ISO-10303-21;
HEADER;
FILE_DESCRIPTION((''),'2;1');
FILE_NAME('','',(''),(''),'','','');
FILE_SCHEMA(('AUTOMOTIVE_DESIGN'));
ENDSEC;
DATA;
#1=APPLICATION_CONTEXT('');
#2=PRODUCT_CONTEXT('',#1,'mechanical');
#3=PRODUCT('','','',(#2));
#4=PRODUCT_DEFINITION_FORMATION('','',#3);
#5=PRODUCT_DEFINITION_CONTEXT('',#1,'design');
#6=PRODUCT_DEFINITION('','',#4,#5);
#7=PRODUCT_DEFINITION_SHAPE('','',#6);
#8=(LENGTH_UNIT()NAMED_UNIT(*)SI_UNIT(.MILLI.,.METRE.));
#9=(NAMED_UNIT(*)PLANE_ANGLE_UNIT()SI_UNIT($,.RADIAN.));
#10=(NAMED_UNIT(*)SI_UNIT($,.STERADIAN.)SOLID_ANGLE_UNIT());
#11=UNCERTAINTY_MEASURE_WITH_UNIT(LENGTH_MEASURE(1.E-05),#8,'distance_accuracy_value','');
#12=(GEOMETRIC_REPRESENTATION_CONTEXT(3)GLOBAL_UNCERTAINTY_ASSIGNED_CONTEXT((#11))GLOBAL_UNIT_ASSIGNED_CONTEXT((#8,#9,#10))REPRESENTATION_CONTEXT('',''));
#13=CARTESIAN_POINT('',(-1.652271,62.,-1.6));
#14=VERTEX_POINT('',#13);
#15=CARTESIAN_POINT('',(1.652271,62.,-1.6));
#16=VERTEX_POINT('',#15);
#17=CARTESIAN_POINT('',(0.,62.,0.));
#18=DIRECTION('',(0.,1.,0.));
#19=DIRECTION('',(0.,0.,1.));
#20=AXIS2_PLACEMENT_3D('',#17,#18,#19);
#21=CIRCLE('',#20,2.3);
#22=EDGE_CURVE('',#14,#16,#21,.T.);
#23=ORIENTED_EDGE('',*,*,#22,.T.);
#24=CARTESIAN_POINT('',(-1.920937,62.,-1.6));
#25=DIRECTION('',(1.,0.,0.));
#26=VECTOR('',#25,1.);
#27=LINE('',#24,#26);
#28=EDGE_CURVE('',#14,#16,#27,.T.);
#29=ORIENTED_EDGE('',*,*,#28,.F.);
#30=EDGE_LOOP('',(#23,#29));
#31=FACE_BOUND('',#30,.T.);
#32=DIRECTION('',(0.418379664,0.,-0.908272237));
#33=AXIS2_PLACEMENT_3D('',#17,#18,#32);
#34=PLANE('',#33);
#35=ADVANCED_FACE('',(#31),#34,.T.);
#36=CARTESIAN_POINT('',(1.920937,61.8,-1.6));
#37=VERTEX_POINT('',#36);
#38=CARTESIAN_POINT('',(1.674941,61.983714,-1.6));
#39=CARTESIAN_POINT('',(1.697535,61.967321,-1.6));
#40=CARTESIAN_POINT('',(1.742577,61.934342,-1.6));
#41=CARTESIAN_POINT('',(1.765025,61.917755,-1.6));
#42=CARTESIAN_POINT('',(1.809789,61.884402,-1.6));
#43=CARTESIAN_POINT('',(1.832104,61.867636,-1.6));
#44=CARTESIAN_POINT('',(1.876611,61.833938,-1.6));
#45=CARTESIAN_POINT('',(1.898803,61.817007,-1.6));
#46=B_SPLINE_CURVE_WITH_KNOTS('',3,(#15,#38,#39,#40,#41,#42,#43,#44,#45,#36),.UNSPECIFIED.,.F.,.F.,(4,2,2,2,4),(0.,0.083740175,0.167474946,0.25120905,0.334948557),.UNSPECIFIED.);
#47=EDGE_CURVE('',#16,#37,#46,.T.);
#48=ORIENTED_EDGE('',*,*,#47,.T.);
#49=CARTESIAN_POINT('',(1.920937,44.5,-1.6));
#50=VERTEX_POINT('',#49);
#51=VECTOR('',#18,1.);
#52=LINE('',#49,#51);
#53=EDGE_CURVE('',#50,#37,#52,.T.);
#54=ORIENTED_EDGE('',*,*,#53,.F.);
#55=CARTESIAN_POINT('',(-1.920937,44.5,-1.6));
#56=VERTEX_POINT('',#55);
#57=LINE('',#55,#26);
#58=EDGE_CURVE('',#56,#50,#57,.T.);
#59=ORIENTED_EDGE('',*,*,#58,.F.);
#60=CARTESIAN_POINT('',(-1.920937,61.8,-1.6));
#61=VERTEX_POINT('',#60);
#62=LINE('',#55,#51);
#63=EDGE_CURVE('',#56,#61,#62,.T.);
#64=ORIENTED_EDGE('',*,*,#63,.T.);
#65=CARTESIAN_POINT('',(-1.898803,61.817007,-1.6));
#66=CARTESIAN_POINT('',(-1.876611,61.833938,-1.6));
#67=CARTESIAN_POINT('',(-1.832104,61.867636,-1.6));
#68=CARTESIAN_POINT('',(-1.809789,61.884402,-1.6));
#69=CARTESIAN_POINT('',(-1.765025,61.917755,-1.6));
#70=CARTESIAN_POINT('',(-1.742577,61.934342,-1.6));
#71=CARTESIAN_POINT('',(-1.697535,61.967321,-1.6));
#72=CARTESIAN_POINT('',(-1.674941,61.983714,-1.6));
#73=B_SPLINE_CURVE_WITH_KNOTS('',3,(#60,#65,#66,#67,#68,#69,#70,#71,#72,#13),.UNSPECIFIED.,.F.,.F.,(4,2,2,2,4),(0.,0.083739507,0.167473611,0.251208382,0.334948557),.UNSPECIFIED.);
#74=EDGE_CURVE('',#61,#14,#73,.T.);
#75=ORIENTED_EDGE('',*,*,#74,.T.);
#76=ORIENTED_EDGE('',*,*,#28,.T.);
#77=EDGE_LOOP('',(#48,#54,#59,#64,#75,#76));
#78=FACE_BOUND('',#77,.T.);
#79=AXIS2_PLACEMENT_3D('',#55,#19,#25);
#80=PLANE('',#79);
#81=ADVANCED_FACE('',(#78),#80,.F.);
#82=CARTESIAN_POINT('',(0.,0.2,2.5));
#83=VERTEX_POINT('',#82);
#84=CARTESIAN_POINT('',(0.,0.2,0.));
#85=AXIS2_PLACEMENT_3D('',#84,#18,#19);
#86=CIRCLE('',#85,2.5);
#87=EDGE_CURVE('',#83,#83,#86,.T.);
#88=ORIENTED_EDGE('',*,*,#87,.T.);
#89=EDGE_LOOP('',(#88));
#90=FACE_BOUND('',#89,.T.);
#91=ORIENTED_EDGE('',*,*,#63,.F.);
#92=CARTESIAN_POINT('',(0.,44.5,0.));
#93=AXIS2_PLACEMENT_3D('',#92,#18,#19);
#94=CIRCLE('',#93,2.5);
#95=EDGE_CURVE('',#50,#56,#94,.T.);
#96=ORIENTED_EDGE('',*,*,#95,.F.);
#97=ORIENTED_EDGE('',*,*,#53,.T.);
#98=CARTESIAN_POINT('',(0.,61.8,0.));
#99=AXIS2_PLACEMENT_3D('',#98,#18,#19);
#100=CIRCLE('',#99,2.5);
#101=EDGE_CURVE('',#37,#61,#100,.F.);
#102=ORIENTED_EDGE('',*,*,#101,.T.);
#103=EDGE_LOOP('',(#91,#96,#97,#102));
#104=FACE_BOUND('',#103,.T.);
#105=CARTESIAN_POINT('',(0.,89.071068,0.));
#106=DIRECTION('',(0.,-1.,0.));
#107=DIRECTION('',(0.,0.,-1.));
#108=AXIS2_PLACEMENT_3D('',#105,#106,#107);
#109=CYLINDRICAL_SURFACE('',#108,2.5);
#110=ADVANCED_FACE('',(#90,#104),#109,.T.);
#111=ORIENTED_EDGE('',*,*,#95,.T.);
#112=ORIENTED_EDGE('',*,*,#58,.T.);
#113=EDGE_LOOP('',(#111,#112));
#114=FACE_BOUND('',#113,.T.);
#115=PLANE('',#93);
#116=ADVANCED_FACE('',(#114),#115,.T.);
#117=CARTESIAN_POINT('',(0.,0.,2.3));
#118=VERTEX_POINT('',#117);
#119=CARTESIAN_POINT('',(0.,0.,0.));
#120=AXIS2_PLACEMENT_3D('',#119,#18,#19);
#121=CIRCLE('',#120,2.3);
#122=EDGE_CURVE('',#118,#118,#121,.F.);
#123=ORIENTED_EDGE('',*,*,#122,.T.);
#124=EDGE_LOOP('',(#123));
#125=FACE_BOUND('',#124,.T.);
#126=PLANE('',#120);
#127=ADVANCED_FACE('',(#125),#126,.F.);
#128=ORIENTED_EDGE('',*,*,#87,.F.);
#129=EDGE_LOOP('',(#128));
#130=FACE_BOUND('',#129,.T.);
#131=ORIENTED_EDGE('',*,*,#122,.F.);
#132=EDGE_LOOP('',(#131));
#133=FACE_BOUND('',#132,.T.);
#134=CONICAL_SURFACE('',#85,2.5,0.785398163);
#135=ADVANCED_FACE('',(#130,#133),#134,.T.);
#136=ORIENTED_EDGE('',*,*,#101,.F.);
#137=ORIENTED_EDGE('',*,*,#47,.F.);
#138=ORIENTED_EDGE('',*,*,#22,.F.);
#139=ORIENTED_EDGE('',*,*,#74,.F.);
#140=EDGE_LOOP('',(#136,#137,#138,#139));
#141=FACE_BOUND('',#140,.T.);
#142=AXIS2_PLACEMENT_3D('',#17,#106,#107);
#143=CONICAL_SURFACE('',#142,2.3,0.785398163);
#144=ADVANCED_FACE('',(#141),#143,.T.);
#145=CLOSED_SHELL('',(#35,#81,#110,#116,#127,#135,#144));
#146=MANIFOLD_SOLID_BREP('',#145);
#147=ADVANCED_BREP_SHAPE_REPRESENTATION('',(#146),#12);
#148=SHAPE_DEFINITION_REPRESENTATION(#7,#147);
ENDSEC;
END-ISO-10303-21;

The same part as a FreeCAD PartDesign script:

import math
import FreeCAD as App
import Part
import Sketcher
Q = App.Units.Quantity


def edges_at(feature, points):
    """Names of the edges that pass closest to the given points."""
    edges = feature.Shape.Edges
    near = lambda p: min(range(len(edges)), key=lambda i: edges[i].distToShape(Part.Vertex(*p))[0])
    return sorted({f"Edge{near(p) + 1}" for p in points})

doc = App.newDocument("Part")
body = doc.addObject("PartDesign::Body", "Body")

sketch1 = body.newObject("Sketcher::SketchObject", "Sketch")
sketch1.AttachmentSupport = (doc.getObject("XZ_Plane"), [""])
sketch1.MapMode = "FlatFace"
sketch1.addGeometry(Part.Circle(App.Vector(0, 0, 0), App.Vector(0, 0, 1), 2.5), False)
sketch1.addConstraint(Sketcher.Constraint("Coincident", 0, 3, -1, 1))
sketch1.addConstraint(Sketcher.Constraint("Diameter", 0, Q("5 mm")))
pad1 = body.newObject("PartDesign::Pad", "Pad")
pad1.Profile = sketch1
pad1.Length = 62
pad1.Reversed = True

sketch2 = body.newObject("Sketcher::SketchObject", "Sketch001")
sketch2.AttachmentSupport = (doc.getObject("XZ_Plane"), [""])
sketch2.MapMode = "FlatFace"
sketch2.AttachmentOffset = App.Placement(App.Vector(0, 0, -62), App.Rotation())
sketch2.addGeometry(Part.LineSegment(App.Vector(-1.9, -1.6, 0), App.Vector(1.9, -1.6, 0)), False)
sketch2.addGeometry(Part.ArcOfCircle(Part.Circle(App.Vector(0, 0, 0), App.Vector(0, 0, 1), 2.5), math.radians(-140), math.radians(-40)), False)
sketch2.addConstraint(Sketcher.Constraint("Coincident", 0, 1, 1, 1))
sketch2.addConstraint(Sketcher.Constraint("Coincident", 1, 2, 0, 2))
sketch2.addConstraint(Sketcher.Constraint("Horizontal", 0))
sketch2.addConstraint(Sketcher.Constraint("Coincident", 1, 3, -1, 1))
sketch2.addConstraint(Sketcher.Constraint("Radius", 1, Q("2.5 mm")))
sketch2.addConstraint(Sketcher.Constraint("DistanceY", 0, 1, -1, 1, Q("1.6 mm")))
pocket1 = body.newObject("PartDesign::Pocket", "Pocket")
pocket1.Profile = sketch2
pocket1.Length = 17.5
pocket1.Reversed = True
doc.recompute()

chamfer = body.newObject("PartDesign::Chamfer", "Chamfer")
chamfer.Base = (pocket1, edges_at(pocket1, [(-0.851, 62, 2.351), (-2.5, 0, 0)]))
chamfer.Size = 0.2

doc.recompute()
